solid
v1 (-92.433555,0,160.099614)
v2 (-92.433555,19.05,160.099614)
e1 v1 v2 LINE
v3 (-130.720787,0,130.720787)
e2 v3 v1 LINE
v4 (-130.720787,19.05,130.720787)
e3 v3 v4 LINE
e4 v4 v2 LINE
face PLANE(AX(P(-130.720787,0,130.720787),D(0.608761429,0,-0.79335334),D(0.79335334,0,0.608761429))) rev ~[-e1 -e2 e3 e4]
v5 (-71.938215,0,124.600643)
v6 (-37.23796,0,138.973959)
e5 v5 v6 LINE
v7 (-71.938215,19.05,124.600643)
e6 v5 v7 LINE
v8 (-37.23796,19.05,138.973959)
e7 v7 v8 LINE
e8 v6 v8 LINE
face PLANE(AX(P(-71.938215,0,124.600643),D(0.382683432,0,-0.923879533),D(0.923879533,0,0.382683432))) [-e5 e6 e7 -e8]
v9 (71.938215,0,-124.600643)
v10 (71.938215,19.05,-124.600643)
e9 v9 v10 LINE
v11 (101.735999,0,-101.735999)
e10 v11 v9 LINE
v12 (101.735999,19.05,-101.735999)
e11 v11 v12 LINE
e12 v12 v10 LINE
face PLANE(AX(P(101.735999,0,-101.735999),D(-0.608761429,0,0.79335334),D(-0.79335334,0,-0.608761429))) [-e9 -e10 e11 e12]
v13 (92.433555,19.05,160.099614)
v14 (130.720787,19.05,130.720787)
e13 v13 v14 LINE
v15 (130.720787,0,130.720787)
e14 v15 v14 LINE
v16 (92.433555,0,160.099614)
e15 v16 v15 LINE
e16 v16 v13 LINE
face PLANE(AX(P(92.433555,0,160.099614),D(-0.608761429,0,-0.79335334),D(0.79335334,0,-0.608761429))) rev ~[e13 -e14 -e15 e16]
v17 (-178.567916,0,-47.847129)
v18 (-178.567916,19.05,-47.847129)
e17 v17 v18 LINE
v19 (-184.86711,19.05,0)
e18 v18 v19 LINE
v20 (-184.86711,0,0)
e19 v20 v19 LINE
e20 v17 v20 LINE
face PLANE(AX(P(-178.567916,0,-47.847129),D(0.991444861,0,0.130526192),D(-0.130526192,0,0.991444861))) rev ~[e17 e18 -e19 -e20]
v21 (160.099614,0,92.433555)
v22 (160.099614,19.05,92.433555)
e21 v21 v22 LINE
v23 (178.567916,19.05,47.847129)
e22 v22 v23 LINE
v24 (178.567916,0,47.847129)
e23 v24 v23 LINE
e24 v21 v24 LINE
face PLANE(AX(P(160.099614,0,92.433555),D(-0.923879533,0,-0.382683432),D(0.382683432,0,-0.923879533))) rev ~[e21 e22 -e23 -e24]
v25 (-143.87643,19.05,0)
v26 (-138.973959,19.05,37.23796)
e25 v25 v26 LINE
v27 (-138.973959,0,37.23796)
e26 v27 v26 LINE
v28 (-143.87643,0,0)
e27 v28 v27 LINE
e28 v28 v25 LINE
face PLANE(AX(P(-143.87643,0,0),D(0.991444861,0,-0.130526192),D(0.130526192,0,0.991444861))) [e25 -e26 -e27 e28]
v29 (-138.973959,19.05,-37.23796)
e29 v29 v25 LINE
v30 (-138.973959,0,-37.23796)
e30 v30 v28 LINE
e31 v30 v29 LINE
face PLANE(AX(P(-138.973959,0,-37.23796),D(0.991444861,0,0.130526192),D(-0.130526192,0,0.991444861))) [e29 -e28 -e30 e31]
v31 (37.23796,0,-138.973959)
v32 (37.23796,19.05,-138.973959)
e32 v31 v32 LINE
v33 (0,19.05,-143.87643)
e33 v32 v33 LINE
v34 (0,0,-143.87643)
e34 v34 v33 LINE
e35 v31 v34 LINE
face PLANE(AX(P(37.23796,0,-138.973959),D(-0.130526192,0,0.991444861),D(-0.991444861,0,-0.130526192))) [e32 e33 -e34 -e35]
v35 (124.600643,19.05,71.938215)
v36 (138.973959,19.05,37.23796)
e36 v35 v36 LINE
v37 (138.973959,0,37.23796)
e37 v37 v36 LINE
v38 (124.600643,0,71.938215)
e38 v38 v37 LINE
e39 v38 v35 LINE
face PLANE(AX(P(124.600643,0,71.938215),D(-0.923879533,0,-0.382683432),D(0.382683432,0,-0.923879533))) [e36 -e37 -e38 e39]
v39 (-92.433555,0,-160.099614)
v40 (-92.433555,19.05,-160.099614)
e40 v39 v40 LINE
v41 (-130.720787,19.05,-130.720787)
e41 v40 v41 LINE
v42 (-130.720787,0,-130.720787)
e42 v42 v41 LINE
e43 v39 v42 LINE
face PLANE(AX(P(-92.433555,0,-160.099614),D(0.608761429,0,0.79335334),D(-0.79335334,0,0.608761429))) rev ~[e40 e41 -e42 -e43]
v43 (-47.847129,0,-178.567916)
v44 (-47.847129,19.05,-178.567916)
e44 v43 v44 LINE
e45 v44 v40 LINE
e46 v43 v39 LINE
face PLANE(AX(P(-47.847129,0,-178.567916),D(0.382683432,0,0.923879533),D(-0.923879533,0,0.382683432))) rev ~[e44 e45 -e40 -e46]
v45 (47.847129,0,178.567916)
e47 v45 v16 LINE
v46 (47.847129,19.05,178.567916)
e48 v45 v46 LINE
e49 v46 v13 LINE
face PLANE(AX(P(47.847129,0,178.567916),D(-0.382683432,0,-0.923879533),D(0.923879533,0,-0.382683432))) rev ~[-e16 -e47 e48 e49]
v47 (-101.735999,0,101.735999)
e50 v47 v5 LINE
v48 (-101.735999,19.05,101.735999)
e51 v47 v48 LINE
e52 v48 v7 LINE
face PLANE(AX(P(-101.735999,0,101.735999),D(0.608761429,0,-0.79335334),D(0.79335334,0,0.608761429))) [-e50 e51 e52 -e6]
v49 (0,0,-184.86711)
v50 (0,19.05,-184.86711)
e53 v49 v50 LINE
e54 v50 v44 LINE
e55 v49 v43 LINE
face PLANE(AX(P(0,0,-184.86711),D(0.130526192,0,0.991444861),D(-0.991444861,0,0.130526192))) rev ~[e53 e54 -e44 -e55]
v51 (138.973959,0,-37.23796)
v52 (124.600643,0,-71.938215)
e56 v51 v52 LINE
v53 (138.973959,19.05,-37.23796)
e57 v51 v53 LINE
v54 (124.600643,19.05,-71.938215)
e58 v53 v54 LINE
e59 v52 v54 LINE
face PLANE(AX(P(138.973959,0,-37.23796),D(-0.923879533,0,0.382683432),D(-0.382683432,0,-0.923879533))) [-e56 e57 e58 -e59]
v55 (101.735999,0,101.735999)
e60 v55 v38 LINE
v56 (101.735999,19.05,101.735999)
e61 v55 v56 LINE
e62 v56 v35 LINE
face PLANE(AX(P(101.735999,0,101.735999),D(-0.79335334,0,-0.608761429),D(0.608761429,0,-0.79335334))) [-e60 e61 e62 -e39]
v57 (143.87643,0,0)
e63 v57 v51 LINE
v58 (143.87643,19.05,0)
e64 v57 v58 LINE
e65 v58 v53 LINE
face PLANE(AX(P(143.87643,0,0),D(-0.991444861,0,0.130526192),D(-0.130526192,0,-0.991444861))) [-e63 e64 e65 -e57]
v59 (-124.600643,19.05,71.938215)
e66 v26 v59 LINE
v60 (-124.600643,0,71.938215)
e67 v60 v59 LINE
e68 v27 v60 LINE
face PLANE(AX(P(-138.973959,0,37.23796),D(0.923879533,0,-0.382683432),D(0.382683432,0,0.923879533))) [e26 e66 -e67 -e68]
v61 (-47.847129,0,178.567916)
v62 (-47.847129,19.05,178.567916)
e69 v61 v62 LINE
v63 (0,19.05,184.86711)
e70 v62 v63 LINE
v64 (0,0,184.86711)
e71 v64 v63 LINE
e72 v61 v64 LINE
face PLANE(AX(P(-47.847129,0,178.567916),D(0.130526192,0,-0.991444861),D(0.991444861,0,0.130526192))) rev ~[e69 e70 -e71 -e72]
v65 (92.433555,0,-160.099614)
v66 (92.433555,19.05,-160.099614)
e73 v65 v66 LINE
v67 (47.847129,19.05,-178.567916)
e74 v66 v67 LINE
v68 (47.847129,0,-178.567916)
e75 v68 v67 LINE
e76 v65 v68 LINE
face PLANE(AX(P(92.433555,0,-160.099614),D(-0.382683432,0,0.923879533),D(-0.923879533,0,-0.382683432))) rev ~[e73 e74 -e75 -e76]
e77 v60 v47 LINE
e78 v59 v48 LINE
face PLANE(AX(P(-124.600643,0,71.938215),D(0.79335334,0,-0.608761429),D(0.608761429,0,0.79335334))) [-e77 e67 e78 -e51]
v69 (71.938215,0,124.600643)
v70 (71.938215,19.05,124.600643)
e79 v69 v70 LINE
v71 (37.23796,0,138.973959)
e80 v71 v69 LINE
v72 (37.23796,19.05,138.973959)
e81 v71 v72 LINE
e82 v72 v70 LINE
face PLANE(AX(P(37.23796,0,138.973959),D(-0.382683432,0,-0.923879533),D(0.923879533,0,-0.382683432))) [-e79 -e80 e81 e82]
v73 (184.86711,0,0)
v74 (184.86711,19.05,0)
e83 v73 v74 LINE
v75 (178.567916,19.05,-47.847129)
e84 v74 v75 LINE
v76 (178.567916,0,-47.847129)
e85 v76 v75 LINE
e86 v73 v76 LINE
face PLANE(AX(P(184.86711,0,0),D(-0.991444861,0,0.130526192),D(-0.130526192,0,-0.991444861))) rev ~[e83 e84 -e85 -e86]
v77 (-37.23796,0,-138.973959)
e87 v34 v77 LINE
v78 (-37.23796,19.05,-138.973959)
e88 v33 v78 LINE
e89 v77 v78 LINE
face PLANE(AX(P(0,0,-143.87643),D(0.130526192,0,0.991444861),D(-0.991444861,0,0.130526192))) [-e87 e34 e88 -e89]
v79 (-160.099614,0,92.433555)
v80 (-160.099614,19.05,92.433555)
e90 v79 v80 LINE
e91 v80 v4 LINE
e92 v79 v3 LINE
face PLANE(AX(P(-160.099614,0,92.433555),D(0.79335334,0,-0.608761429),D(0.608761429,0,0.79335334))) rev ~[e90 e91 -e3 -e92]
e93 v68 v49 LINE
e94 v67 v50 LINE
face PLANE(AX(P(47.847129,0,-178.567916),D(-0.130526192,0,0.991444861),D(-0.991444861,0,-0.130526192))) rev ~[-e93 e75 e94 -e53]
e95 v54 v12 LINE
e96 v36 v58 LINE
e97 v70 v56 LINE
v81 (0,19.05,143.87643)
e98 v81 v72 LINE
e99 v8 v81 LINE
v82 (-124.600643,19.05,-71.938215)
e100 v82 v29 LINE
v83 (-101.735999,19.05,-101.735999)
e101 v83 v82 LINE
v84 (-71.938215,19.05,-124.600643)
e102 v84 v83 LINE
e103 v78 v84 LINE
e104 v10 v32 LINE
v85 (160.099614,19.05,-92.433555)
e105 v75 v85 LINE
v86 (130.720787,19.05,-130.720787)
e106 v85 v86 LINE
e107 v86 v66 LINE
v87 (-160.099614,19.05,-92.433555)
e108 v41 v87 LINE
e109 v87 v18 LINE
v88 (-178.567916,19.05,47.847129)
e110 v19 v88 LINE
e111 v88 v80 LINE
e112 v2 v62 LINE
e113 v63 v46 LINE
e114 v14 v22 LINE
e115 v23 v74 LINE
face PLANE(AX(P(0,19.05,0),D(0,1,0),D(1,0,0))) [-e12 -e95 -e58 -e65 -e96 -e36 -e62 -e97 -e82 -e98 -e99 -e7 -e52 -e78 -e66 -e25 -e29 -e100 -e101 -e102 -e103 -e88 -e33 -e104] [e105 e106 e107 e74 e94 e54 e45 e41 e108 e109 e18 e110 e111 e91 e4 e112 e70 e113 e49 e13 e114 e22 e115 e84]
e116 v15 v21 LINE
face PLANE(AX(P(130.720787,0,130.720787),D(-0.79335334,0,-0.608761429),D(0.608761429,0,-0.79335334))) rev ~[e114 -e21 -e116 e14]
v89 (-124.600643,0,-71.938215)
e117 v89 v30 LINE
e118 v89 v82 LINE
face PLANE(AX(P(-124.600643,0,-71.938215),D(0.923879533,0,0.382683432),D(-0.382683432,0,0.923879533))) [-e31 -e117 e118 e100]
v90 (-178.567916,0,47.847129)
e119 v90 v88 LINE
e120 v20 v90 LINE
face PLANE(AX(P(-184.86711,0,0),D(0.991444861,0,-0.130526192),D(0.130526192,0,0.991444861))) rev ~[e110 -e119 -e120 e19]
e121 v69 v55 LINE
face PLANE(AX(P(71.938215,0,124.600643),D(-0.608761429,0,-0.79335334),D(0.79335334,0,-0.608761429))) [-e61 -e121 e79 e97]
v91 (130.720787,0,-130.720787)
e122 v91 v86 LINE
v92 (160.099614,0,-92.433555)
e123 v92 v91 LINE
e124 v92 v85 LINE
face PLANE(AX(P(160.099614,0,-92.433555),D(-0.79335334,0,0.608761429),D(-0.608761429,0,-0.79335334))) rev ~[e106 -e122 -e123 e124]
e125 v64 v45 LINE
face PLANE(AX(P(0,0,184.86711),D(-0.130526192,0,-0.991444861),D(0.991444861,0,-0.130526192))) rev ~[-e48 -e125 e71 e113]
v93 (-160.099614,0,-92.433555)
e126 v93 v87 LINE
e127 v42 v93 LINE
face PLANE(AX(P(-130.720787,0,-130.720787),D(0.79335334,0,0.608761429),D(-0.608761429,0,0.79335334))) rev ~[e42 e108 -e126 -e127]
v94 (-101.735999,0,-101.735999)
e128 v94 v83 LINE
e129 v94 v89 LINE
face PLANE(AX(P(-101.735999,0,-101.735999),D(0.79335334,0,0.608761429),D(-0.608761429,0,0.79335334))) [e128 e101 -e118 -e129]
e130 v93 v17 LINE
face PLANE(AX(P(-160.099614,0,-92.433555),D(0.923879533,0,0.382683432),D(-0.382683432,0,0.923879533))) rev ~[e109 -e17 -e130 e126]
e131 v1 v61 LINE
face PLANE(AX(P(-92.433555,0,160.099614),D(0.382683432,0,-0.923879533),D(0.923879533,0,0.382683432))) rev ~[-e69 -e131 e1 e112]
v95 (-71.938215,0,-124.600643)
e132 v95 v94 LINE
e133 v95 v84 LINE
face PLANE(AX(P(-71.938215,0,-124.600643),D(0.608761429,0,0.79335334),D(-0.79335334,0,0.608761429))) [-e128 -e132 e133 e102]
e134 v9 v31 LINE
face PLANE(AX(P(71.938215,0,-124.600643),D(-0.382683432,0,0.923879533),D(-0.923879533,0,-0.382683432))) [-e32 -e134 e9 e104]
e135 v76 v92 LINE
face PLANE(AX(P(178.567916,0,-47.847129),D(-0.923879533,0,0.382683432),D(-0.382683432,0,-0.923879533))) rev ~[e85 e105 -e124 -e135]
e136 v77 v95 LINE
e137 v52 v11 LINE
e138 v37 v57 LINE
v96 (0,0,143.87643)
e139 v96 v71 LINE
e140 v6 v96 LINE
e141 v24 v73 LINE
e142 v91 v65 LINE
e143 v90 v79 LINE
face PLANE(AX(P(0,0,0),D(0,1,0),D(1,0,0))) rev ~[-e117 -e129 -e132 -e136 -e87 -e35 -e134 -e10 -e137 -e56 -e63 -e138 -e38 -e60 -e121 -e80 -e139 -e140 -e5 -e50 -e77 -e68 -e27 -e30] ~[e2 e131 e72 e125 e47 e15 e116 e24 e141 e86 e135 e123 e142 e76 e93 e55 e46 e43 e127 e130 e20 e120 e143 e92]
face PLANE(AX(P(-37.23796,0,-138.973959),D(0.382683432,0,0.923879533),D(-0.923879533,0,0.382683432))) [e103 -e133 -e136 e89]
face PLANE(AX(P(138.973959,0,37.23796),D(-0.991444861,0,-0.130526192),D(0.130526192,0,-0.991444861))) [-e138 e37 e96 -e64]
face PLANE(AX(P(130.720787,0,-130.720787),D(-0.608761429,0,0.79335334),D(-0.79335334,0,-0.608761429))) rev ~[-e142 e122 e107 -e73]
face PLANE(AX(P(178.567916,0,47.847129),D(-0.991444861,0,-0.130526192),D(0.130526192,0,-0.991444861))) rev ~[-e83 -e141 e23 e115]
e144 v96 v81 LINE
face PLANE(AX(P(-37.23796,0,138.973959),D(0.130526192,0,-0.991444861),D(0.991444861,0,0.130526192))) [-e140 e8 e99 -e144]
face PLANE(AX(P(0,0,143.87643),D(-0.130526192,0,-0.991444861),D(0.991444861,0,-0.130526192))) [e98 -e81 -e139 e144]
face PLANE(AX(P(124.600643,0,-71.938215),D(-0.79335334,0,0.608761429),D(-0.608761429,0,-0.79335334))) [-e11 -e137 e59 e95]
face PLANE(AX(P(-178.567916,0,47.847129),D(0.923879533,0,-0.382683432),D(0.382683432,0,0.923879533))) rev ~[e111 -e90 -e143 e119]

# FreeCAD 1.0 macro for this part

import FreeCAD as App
import Part
import Sketcher
Q = App.Units.Quantity


def add_polygon(sketch, points):
    """Adds a closed chain of lines whose ends are joined by coincident constraints."""
    first, n = sketch.GeometryCount, len(points)
    for a, b in zip(points, points[1:] + points[:1]):
        sketch.addGeometry(Part.LineSegment(App.Vector(*a, 0), App.Vector(*b, 0)), False)
    for i in range(n):
        sketch.addConstraint(Sketcher.Constraint("Coincident", first + i, 2, first + (i + 1) % n, 1))

doc = App.newDocument("Part")
body = doc.addObject("PartDesign::Body", "Body")

# Sketch on XZ plane
sketch1 = doc.addObject("Sketcher::SketchObject", "Sketch")
body.addObject(sketch1)
sketch1.AttachmentSupport = (doc.XZ_Plane, [""])
sketch1.MapMode = "FlatFace"
add_polygon(sketch1, [(-184.86711, 0), (-178.567916, 47.847129), (-160.099614, 92.433555), (-130.720787, 130.720787), (-92.433555, 160.099614), (-47.847129, 178.567916), (0, 184.86711), (47.847129, 178.567916), (92.433555, 160.099614), (130.720787, 130.720787), (160.099614, 92.433555), (178.567916, 47.847129), (184.86711, 0), (178.567916, -47.847129), (160.099614, -92.433555), (130.720787, -130.720787), (92.433555, -160.099614), (47.847129, -178.567916), (0, -184.86711), (-47.847129, -178.567916), (-92.433555, -160.099614), (-130.720787, -130.720787), (-160.099614, -92.433555), (-178.567916, -47.847129)])  # lines 0-23
add_polygon(sketch1, [(-138.973959, 37.23796), (-143.87643, 0), (-138.973959, -37.23796), (-124.600643, -71.938215), (-101.735999, -101.735999), (-71.938215, -124.600643), (-37.23796, -138.973959), (0, -143.87643), (37.23796, -138.973959), (71.938215, -124.600643), (101.735999, -101.735999), (124.600643, -71.938215), (138.973959, -37.23796), (143.87643, 0), (138.973959, 37.23796), (124.600643, 71.938215), (101.735999, 101.735999), (71.938215, 124.600643), (37.23796, 138.973959), (0, 143.87643), (-37.23796, 138.973959), (-71.938215, 124.600643), (-101.735999, 101.735999), (-124.600643, 71.938215)])  # lines 24-47
sketch1.addConstraint([
    Sketcher.Constraint("Symmetric", 0, 2, 12, 2, -1, 1),
    Sketcher.Constraint("Symmetric", 1, 2, 13, 2, -1, 1),
    Sketcher.Constraint("Symmetric", 2, 2, 14, 2, -1, 1),
    Sketcher.Constraint("Symmetric", 3, 2, 15, 2, -1, 1),
    Sketcher.Constraint("Symmetric", 4, 2, 16, 2, -1, 1),
    Sketcher.Constraint("Symmetric", 5, 2, 17, 2, -1, 1),
    Sketcher.Constraint("Symmetric", 6, 2, 18, 2, -1, 1),
    Sketcher.Constraint("Symmetric", 7, 2, 19, 2, -1, 1),
    Sketcher.Constraint("Symmetric", 8, 2, 20, 2, -1, 1),
    Sketcher.Constraint("Symmetric", 9, 2, 21, 2, -1, 1),
    Sketcher.Constraint("Symmetric", 10, 2, 22, 2, -1, 1),
    Sketcher.Constraint("Symmetric", 11, 2, 23, 2, -1, 1),
    Sketcher.Constraint("Symmetric", 24, 2, 36, 2, -1, 1),
    Sketcher.Constraint("Symmetric", 25, 2, 37, 2, -1, 1),
    Sketcher.Constraint("Symmetric", 26, 2, 38, 2, -1, 1),
    Sketcher.Constraint("Symmetric", 27, 2, 39, 2, -1, 1),
    Sketcher.Constraint("Symmetric", 28, 2, 40, 2, -1, 1),
    Sketcher.Constraint("Symmetric", 29, 2, 41, 2, -1, 1),
    Sketcher.Constraint("Symmetric", 30, 2, 42, 2, -1, 1),
    Sketcher.Constraint("Symmetric", 31, 2, 43, 2, -1, 1),
    Sketcher.Constraint("Symmetric", 32, 2, 44, 2, -1, 1),
    Sketcher.Constraint("Symmetric", 33, 2, 45, 2, -1, 1),
    Sketcher.Constraint("Symmetric", 34, 2, 46, 2, -1, 1),
    Sketcher.Constraint("Symmetric", 35, 2, 47, 2, -1, 1),
    Sketcher.Constraint("Symmetric", 4, 2, 6, 2, -2),
    Sketcher.Constraint("Symmetric", 3, 2, 7, 2, -2),
    Sketcher.Constraint("Symmetric", 2, 2, 8, 2, -2),
    Sketcher.Constraint("Symmetric", 1, 2, 9, 2, -2),
    Sketcher.Constraint("Symmetric", 0, 2, 10, 2, -2),
    Sketcher.Constraint("Symmetric", 29, 2, 31, 2, -2),
    Sketcher.Constraint("Symmetric", 28, 2, 32, 2, -2),
    Sketcher.Constraint("Symmetric", 27, 2, 33, 2, -2),
    Sketcher.Constraint("Symmetric", 26, 2, 34, 2, -2),
    Sketcher.Constraint("Symmetric", 25, 2, 35, 2, -2),
    Sketcher.Constraint("PointOnObject", 5, 2, -2),
    Sketcher.Constraint("PointOnObject", 11, 2, -1),
    Sketcher.Constraint("PointOnObject", 24, 2, -1),
    Sketcher.Constraint("PointOnObject", 30, 2, -2),
    Sketcher.Constraint("Perpendicular", 0, 6),
    Sketcher.Constraint("Perpendicular", 1, 7),
    Sketcher.Constraint("Perpendicular", 2, 8),
    Sketcher.Constraint("Perpendicular", 18, 24),
    Sketcher.Constraint("Parallel", 22, 26),
    Sketcher.Constraint("Parallel", 21, 27),
    Sketcher.Constraint("Parallel", 20, 28),
    Sketcher.Constraint("Parallel", 19, 29),
    Sketcher.Constraint("Perpendicular", 24, 30),
    Sketcher.Constraint("Equal", 0, 1),
    Sketcher.Constraint("Equal", 1, 2),
    Sketcher.Constraint("Equal", 2, 3),
    Sketcher.Constraint("Equal", 3, 4),
    Sketcher.Constraint("Equal", 4, 5),
    Sketcher.Constraint("Equal", 25, 26),
    Sketcher.Constraint("Equal", 26, 27),
    Sketcher.Constraint("Equal", 27, 28),
    Sketcher.Constraint("Equal", 28, 29),
    Sketcher.Constraint("Equal", 29, 30),
    Sketcher.Constraint("Distance", 0, Q("1.9 in")),
    Sketcher.Constraint("Angle", 0, Q("82.5 deg")),
    Sketcher.Constraint("Angle", 1, Q("67.5 deg")),
    Sketcher.Constraint("Angle", 2, Q("52.5 deg")),
    Sketcher.Constraint("DistanceX", 27, 2, -1, 1, Q("101.735999 mm")),
])
pad1 = doc.addObject("PartDesign::Pad", "Pad")
body.addObject(pad1)
pad1.Profile = sketch1
pad1.Length = Q("0.75 in")
pad1.Reversed = True

doc.recompute()
